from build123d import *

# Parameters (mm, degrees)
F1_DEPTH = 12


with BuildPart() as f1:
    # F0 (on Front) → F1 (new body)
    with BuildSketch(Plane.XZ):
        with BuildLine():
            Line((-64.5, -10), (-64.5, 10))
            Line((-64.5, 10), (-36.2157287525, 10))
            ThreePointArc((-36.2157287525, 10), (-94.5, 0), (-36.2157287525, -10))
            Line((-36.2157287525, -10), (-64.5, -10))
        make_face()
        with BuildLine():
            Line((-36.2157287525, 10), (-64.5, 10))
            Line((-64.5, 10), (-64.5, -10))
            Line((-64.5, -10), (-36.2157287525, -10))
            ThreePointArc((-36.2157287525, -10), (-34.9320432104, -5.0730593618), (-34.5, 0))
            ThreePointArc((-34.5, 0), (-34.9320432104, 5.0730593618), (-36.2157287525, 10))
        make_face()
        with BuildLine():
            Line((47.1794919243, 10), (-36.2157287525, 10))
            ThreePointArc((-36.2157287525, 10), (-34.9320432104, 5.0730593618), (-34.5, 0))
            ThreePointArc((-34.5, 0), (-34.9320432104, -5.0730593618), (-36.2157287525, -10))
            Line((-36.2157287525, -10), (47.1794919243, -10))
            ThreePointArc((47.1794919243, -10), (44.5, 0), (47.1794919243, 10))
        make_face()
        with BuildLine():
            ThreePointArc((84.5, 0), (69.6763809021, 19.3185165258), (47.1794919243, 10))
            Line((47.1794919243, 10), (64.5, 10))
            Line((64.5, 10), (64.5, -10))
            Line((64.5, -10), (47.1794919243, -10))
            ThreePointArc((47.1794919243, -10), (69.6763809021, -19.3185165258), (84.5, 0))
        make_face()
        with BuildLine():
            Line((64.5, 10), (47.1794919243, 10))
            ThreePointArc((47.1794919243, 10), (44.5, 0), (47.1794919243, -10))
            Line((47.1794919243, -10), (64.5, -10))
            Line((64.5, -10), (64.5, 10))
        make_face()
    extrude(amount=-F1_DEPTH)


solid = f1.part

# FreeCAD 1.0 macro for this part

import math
import FreeCAD as App
import Part
import Sketcher
Q = App.Units.Quantity

doc = App.newDocument("Part")
body = doc.addObject("PartDesign::Body", "Body")

# Sketch on XZ plane
sketch1 = body.newObject("Sketcher::SketchObject", "Sketch")
sketch1.AttachmentSupport = (doc.getObject("XZ_Plane"), [""])
sketch1.MapMode = "FlatFace"
sketch1.addGeometry(Part.ArcOfCircle(Part.Circle(App.Vector(-64, 0, 0), App.Vector(0, 0, 1), 30), math.radians(19), math.radians(341)), False)
sketch1.addGeometry(Part.LineSegment(App.Vector(-36, -10, 0), App.Vector(47, -10, 0)), False)
sketch1.addGeometry(Part.ArcOfCircle(Part.Circle(App.Vector(64, 0, 0), App.Vector(0, 0, 1), 20), math.radians(-150), math.radians(0)), False)
sketch1.addGeometry(Part.ArcOfCircle(Part.Circle(App.Vector(64, 0, 0), App.Vector(0, 0, 1), 20), math.radians(0), math.radians(150)), False)
sketch1.addGeometry(Part.LineSegment(App.Vector(47, 10, 0), App.Vector(-36, 10, 0)), False)
sketch1.addConstraint(Sketcher.Constraint("Coincident", 0, 2, 1, 1))
sketch1.addConstraint(Sketcher.Constraint("Coincident", 1, 2, 2, 1))
sketch1.addConstraint(Sketcher.Constraint("Tangent", 2, 2, 3, 1))
sketch1.addConstraint(Sketcher.Constraint("Coincident", 3, 2, 4, 1))
sketch1.addConstraint(Sketcher.Constraint("Coincident", 4, 2, 0, 1))
sketch1.addConstraint(Sketcher.Constraint("Horizontal", 1))
sketch1.addConstraint(Sketcher.Constraint("Horizontal", 4))
sketch1.addConstraint(Sketcher.Constraint("Equal", 2, 3))
sketch1.addConstraint(Sketcher.Constraint("Symmetric", 0, 3, 2, 3, -1, 1))
sketch1.addConstraint(Sketcher.Constraint("Symmetric", 1, 2, 3, 2, -1))
sketch1.addConstraint(Sketcher.Constraint("PointOnObject", 2, 2, -1))
sketch1.addConstraint(Sketcher.Constraint("Radius", 0, Q("30 mm")))
sketch1.addConstraint(Sketcher.Constraint("Radius", 2, Q("20 mm")))
sketch1.addConstraint(Sketcher.Constraint("DistanceY", 0, 2, -1, 1, Q("10 mm")))
sketch1.addConstraint(Sketcher.Constraint("DistanceX", 0, 3, 2, 3, Q("129 mm")))
pad1 = body.newObject("PartDesign::Pad", "Pad")
pad1.Profile = sketch1
pad1.Length = 12
pad1.Reversed = True

doc.recompute()
